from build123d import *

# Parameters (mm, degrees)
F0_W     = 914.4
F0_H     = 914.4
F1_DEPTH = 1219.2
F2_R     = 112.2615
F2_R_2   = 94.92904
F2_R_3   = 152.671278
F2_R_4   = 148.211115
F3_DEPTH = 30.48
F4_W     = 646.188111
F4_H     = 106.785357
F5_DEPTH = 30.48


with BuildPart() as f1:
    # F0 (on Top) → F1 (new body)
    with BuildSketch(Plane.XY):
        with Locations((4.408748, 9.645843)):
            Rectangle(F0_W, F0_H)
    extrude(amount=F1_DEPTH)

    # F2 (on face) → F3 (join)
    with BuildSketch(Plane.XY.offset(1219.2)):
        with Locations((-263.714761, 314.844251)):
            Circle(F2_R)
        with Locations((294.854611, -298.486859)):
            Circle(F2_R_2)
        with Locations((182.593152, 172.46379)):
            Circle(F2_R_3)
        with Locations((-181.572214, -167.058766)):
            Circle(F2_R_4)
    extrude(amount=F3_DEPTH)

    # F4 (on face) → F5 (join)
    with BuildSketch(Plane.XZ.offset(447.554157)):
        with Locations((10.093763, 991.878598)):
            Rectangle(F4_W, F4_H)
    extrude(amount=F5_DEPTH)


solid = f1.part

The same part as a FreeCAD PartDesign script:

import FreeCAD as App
import Part
import Sketcher
Q = App.Units.Quantity


def add_polygon(sketch, points):
    """Adds a closed chain of lines whose ends are joined by coincident constraints."""
    first, n = sketch.GeometryCount, len(points)
    for a, b in zip(points, points[1:] + points[:1]):
        sketch.addGeometry(Part.LineSegment(App.Vector(*a, 0), App.Vector(*b, 0)), False)
    for i in range(n):
        sketch.addConstraint(Sketcher.Constraint("Coincident", first + i, 2, first + (i + 1) % n, 1))

doc = App.newDocument("Part")
params = doc.addObject("Spreadsheet::Sheet", "Params")
for row, (alias, value) in enumerate([
    ("sketch1_width", "36 in"),
    ("pad1_length", "48 in"),
    ("pad2_length", "1.2 in"),
    ("pad3_length", "1.2 in"),
], start=1):
    params.set(f"A{row}", alias)
    params.set(f"B{row}", "=" + value)
    params.setAlias(f"B{row}", alias)

body = doc.addObject("PartDesign::Body", "Body")

sketch1 = doc.addObject("Sketcher::SketchObject", "Sketch")
body.addObject(sketch1)
sketch1.AttachmentSupport = (doc.XY_Plane, [""])
sketch1.MapMode = "FlatFace"
add_polygon(sketch1, [(-453, 467), (-453, -448), (462, -448), (462, 467)])
sketch1.addConstraint([
    Sketcher.Constraint("Vertical", 0),
    Sketcher.Constraint("Horizontal", 1),
    Sketcher.Constraint("Vertical", 2),
    Sketcher.Constraint("Horizontal", 3),
    Sketcher.Constraint("Equal", 3, 0),
    Sketcher.Constraint("DistanceX", 1, 1, 1, 2, Q("36 in")),
    Sketcher.Constraint("DistanceX", 0, 2, -1, 1, 452.791252),
    Sketcher.Constraint("DistanceY", 0, 2, -1, 1, 447.554157),
])
sketch1.setExpression("Constraints[9]", "Params.sketch1_width")
pad1 = doc.addObject("PartDesign::Pad", "Pad")
body.addObject(pad1)
pad1.Profile = sketch1
pad1.setExpression("Length", "Params.pad1_length")

sketch2 = doc.addObject("Sketcher::SketchObject", "Sketch001")
body.addObject(sketch2)
sketch2.AttachmentSupport = (doc.XY_Plane, [""])
sketch2.MapMode = "FlatFace"
sketch2.AttachmentOffset = App.Placement(App.Vector(0, 0, 48 * 25.4), App.Rotation())
sketch2.addGeometry([
    Part.Circle(App.Vector(-264, 315, 0), App.Vector(0, 0, 1), 112),
    Part.Circle(App.Vector(295, -298, 0), App.Vector(0, 0, 1), 95),
    Part.Circle(App.Vector(183, 172, 0), App.Vector(0, 0, 1), 153),
    Part.Circle(App.Vector(-182, -167, 0), App.Vector(0, 0, 1), 148),
], False)
sketch2.addConstraint([
    Sketcher.Constraint("Diameter", 0, 224.523),
    Sketcher.Constraint("Diameter", 1, 189.85808),
    Sketcher.Constraint("Diameter", 3, 296.42223),
    Sketcher.Constraint("Diameter", 2, 305.342556),
    Sketcher.Constraint("DistanceX", 0, 3, -1, 1, 263.714761),
    Sketcher.Constraint("DistanceY", -1, 1, 0, 3, 314.844251),
    Sketcher.Constraint("DistanceX", -1, 1, 1, 3, 294.854611),
    Sketcher.Constraint("DistanceY", 1, 3, -1, 1, 298.486859),
    Sketcher.Constraint("DistanceX", -1, 1, 2, 3, 182.593152),
    Sketcher.Constraint("DistanceY", -1, 1, 2, 3, 172.46379),
    Sketcher.Constraint("DistanceX", 3, 3, -1, 1, 181.572214),
    Sketcher.Constraint("DistanceY", 3, 3, -1, 1, 167.058766),
])
pad2 = doc.addObject("PartDesign::Pad", "Pad001")
body.addObject(pad2)
pad2.Profile = sketch2
pad2.setExpression("Length", "Params.pad2_length")

sketch3 = doc.addObject("Sketcher::SketchObject", "Sketch002")
body.addObject(sketch3)
sketch3.AttachmentSupport = (doc.XZ_Plane, [""])
sketch3.MapMode = "FlatFace"
sketch3.AttachmentOffset = App.Placement(App.Vector(0, 0, 447.554157), App.Rotation())
add_polygon(sketch3, [(-313, 1045), (-313, 938), (333, 938), (333, 1045)])
sketch3.addConstraint([
    Sketcher.Constraint("Vertical", 0),
    Sketcher.Constraint("Horizontal", 1),
    Sketcher.Constraint("Vertical", 2),
    Sketcher.Constraint("Horizontal", 3),
    Sketcher.Constraint("DistanceX", 1, 1, 1, 2, 646.188111),
    Sketcher.Constraint("DistanceY", 0, 2, 0, 1, 106.785357),
    Sketcher.Constraint("DistanceY", -1, 1, 0, 2, 938.48592),
    Sketcher.Constraint("DistanceX", -1, 1, 1, 2, 333.187818),
])
pad3 = doc.addObject("PartDesign::Pad", "Pad002")
body.addObject(pad3)
pad3.Profile = sketch3
pad3.setExpression("Length", "Params.pad3_length")

doc.recompute()
